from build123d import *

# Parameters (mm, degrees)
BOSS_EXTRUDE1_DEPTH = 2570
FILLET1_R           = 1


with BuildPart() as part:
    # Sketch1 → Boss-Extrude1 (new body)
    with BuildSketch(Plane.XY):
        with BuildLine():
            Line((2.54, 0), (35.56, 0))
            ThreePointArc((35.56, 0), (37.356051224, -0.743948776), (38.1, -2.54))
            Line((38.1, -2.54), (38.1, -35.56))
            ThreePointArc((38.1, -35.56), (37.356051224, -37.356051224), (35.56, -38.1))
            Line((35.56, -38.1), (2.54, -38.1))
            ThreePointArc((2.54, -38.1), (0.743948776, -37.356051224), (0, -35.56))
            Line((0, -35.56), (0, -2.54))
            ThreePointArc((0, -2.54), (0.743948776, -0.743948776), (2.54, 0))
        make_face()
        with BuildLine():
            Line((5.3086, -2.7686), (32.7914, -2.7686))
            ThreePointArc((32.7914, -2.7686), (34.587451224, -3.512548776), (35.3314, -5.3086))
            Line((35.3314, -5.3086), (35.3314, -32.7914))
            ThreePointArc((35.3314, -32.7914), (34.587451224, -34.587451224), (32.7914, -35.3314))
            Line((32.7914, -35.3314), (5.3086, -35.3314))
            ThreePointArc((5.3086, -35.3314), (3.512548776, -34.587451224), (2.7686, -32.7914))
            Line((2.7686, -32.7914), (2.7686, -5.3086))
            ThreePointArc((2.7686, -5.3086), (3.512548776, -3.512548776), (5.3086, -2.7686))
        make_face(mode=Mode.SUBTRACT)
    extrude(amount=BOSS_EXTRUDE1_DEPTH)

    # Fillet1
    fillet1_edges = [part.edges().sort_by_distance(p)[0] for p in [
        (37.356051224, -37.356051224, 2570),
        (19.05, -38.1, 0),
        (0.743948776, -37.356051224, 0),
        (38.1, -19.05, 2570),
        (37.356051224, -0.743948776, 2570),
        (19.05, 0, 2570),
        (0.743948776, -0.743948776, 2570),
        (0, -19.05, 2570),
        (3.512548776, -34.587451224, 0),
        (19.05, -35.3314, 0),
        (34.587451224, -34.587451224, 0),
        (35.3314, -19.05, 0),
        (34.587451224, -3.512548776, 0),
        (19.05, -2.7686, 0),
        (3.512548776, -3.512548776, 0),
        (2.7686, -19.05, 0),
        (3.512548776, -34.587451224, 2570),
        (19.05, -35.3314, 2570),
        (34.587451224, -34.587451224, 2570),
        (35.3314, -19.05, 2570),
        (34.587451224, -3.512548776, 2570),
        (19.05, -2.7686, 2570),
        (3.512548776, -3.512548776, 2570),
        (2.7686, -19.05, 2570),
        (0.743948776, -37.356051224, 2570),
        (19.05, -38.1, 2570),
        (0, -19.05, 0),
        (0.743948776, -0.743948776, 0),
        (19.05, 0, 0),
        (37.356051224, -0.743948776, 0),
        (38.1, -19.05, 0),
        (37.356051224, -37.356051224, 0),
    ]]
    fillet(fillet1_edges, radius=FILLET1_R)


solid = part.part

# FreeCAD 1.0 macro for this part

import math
import FreeCAD as App
import Part
import Sketcher
from FreeCAD import Vector
Q = App.Units.Quantity


def edges_at(feature, points):
    """Names of the edges that pass closest to the given points."""
    edges = feature.Shape.Edges
    near = lambda p: min(range(len(edges)), key=lambda i: edges[i].distToShape(Part.Vertex(*p))[0])
    return sorted({f"Edge{near(p) + 1}" for p in points})

doc = App.newDocument("Part")
body = doc.addObject("PartDesign::Body", "Body")

# Sketch on XY plane
sketch1 = body.newObject("Sketcher::SketchObject", "Sketch")
sketch1.AttachmentSupport = (doc.getObject("XY_Plane"), [""])
sketch1.MapMode = "FlatFace"
sketch1.addGeometry([
    Part.LineSegment(Vector(35.6, 0, 0), Vector(2.5, 0, 0)),  # 0
    Part.ArcOfCircle(Part.Circle(Vector(2.5, -2.5, 0), Vector(0, 0, 1), 2.5), math.radians(90), math.radians(180)),  # 1
    Part.LineSegment(Vector(0, -2.5, 0), Vector(0, -35.6, 0)),  # 2
    Part.ArcOfCircle(Part.Circle(Vector(2.5, -35.6, 0), Vector(0, 0, 1), 2.5), math.radians(-180), math.radians(-90)),  # 3
    Part.LineSegment(Vector(2.5, -38.1, 0), Vector(35.6, -38.1, 0)),  # 4
    Part.ArcOfCircle(Part.Circle(Vector(35.6, -35.6, 0), Vector(0, 0, 1), 2.5), math.radians(-90), math.radians(0)),  # 5
    Part.LineSegment(Vector(38.1, -35.6, 0), Vector(38.1, -2.5, 0)),  # 6
    Part.ArcOfCircle(Part.Circle(Vector(35.6, -2.5, 0), Vector(0, 0, 1), 2.5), math.radians(0), math.radians(90)),  # 7
    Part.LineSegment(Vector(5.3, -2.8, 0), Vector(32.8, -2.8, 0)),  # 8
    Part.ArcOfCircle(Part.Circle(Vector(32.8, -5.3, 0), Vector(0, 0, 1), 2.5), math.radians(0), math.radians(90)),  # 9
    Part.LineSegment(Vector(35.3, -5.3, 0), Vector(35.3, -32.8, 0)),  # 10
    Part.ArcOfCircle(Part.Circle(Vector(32.8, -32.8, 0), Vector(0, 0, 1), 2.5), math.radians(-90), math.radians(0)),  # 11
    Part.LineSegment(Vector(32.8, -35.3, 0), Vector(5.3, -35.3, 0)),  # 12
    Part.ArcOfCircle(Part.Circle(Vector(5.3, -32.8, 0), Vector(0, 0, 1), 2.5), math.radians(-180), math.radians(-90)),  # 13
    Part.LineSegment(Vector(2.8, -32.8, 0), Vector(2.8, -5.3, 0)),  # 14
    Part.ArcOfCircle(Part.Circle(Vector(5.3, -5.3, 0), Vector(0, 0, 1), 2.5), math.radians(90), math.radians(180)),  # 15
], False)
sketch1.addConstraint([
    Sketcher.Constraint("Tangent", 0, 2, 1, 1),
    Sketcher.Constraint("Tangent", 1, 2, 2, 1),
    Sketcher.Constraint("Tangent", 2, 2, 3, 1),
    Sketcher.Constraint("Tangent", 3, 2, 4, 1),
    Sketcher.Constraint("Tangent", 4, 2, 5, 1),
    Sketcher.Constraint("Tangent", 5, 2, 6, 1),
    Sketcher.Constraint("Tangent", 6, 2, 7, 1),
    Sketcher.Constraint("Tangent", 7, 2, 0, 1),
    Sketcher.Constraint("Tangent", 8, 2, 9, 2),
    Sketcher.Constraint("Tangent", 9, 1, 10, 1),
    Sketcher.Constraint("Tangent", 10, 2, 11, 2),
    Sketcher.Constraint("Tangent", 11, 1, 12, 1),
    Sketcher.Constraint("Tangent", 12, 2, 13, 2),
    Sketcher.Constraint("Tangent", 13, 1, 14, 1),
    Sketcher.Constraint("Tangent", 14, 2, 15, 2),
    Sketcher.Constraint("Tangent", 15, 1, 8, 1),
    Sketcher.Constraint("Horizontal", 0),
    Sketcher.Constraint("Vertical", 2),
    Sketcher.Constraint("Horizontal", 4),
    Sketcher.Constraint("Vertical", 6),
    Sketcher.Constraint("Horizontal", 8),
    Sketcher.Constraint("Vertical", 10),
    Sketcher.Constraint("Horizontal", 12),
    Sketcher.Constraint("Vertical", 14),
    Sketcher.Constraint("Equal", 1, 3),
    Sketcher.Constraint("Equal", 3, 5),
    Sketcher.Constraint("Equal", 5, 7),
    Sketcher.Constraint("Equal", 7, 9),
    Sketcher.Constraint("Equal", 9, 11),
    Sketcher.Constraint("Equal", 11, 13),
    Sketcher.Constraint("Equal", 13, 15),
    Sketcher.Constraint("PointOnObject", 0, 2, -1),
    Sketcher.Constraint("PointOnObject", 1, 2, -2),
    Sketcher.Constraint("Equal", 4, 2),
    Sketcher.Constraint("Equal", 12, 10),
    Sketcher.Constraint("Radius", 1, Q("0.1 in")),
    Sketcher.Constraint("DistanceX", 0, 2, 0, 1, Q("1.3 in")),
    Sketcher.Constraint("DistanceX", 8, 1, 8, 2, Q("1.082 in")),
    Sketcher.Constraint("DistanceX", -1, 1, 9, 3, Q("1.291 in")),
    Sketcher.Constraint("DistanceY", 9, 3, -1, 1, Q("0.209 in")),
])
pad1 = body.newObject("PartDesign::Pad", "Pad")
pad1.Profile = sketch1
pad1.Length = 2570
doc.recompute()

fillet = body.newObject("PartDesign::Fillet", "Fillet")
fillet.Base = (pad1, edges_at(pad1, [
    (37.356, -37.356, 2570),
    (19.05, -38.1, 0),
    (0.744, -37.356, 0),
    (38.1, -19.05, 2570),
    (37.356, -0.744, 2570),
    (19.05, 0, 2570),
    (0.744, -0.744, 2570),
    (0, -19.05, 2570),
    (3.513, -34.587, 0),
    (19.05, -35.331, 0),
    (34.587, -34.587, 0),
    (35.331, -19.05, 0),
    (34.587, -3.513, 0),
    (19.05, -2.769, 0),
    (3.513, -3.513, 0),
    (2.769, -19.05, 0),
    (3.513, -34.587, 2570),
    (19.05, -35.331, 2570),
    (34.587, -34.587, 2570),
    (35.331, -19.05, 2570),
    (34.587, -3.513, 2570),
    (19.05, -2.769, 2570),
    (3.513, -3.513, 2570),
    (2.769, -19.05, 2570),
    (0.744, -37.356, 2570),
    (19.05, -38.1, 2570),
    (0, -19.05, 0),
    (0.744, -0.744, 0),
    (19.05, 0, 0),
    (37.356, -0.744, 0),
    (38.1, -19.05, 0),
    (37.356, -37.356, 0),
]))
fillet.Radius = 1

doc.recompute()
